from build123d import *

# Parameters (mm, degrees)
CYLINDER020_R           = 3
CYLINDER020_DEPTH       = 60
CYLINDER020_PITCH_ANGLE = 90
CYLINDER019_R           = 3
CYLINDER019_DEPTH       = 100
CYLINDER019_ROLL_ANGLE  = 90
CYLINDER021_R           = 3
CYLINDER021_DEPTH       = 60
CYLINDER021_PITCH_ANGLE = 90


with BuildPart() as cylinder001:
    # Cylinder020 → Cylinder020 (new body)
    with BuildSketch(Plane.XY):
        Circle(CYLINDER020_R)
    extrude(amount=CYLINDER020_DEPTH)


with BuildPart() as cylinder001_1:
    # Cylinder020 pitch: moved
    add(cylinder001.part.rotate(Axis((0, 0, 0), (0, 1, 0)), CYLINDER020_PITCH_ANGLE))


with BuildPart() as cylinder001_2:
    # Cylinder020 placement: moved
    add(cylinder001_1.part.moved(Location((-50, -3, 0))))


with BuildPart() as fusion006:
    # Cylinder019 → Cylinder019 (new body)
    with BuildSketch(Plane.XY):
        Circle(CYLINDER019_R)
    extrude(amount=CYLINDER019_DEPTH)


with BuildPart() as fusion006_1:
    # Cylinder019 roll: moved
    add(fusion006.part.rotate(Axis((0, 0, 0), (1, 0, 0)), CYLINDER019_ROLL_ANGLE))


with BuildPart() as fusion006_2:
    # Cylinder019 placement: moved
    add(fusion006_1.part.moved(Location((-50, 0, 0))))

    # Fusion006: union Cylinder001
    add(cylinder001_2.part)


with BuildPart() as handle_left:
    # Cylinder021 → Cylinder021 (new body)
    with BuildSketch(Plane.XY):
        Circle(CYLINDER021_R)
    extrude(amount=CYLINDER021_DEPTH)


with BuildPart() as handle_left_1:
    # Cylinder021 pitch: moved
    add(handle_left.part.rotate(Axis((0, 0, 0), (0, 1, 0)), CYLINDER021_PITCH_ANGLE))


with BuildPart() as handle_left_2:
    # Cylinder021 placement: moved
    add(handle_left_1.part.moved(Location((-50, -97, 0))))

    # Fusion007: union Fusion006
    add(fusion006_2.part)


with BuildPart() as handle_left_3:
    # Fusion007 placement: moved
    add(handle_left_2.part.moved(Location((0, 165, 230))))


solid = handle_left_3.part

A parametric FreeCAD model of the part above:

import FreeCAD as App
import Part
import Sketcher
from FreeCAD import Vector
Q = App.Units.Quantity

doc = App.newDocument("Part")
body = doc.addObject("PartDesign::Body", "Body")

sketch1 = body.newObject("Sketcher::SketchObject", "Sketch")
sketch1.AttachmentSupport = (doc.getObject("XY_Plane"), [""])
sketch1.MapMode = "FlatFace"
sketch1.addGeometry(Part.Circle(Vector(0, 0, 0), Vector(0, 0, 1), 3), False)
sketch1.addConstraint([
    Sketcher.Constraint("Coincident", 0, 3, -1, 1),
    Sketcher.Constraint("Diameter", 0, Q("6 mm")),
])
pad1 = body.newObject("PartDesign::Pad", "Pad")
pad1.Profile = sketch1
pad1.Length = 60
body2 = doc.addObject("PartDesign::Body", "Body001")
doc.recompute()

body.Placement = App.Placement(Vector(0, 0, 0), App.Rotation(Vector(0, 1, 0), 90))
boolean = body2.newObject("PartDesign::Boolean", "Boolean")
boolean.Type = "Fuse"
boolean.addObjects([body])
body3 = doc.addObject("PartDesign::Body", "Body002")
doc.recompute()

body2.Placement = App.Placement(Vector(-50, -3, 0), App.Rotation(Vector(0, 0, 1), 0))
boolean2 = body3.newObject("PartDesign::Boolean", "Boolean001")
boolean2.Type = "Fuse"
boolean2.addObjects([body2])
body4 = doc.addObject("PartDesign::Body", "Body003")

sketch2 = body4.newObject("Sketcher::SketchObject", "Sketch001")
sketch2.AttachmentSupport = (doc.getObject("XY_Plane003"), [""])
sketch2.MapMode = "FlatFace"
sketch2.addGeometry(Part.Circle(Vector(0, 0, 0), Vector(0, 0, 1), 3), False)
sketch2.addConstraint([
    Sketcher.Constraint("Coincident", 0, 3, -1, 1),
    Sketcher.Constraint("Diameter", 0, Q("6 mm")),
])
pad2 = body4.newObject("PartDesign::Pad", "Pad001")
pad2.Profile = sketch2
pad2.Length = 100
body5 = doc.addObject("PartDesign::Body", "Body004")
doc.recompute()

body4.Placement = App.Placement(Vector(0, 0, 0), App.Rotation(Vector(1, 0, 0), 90))
boolean3 = body5.newObject("PartDesign::Boolean", "Boolean002")
boolean3.Type = "Fuse"
boolean3.addObjects([body4])
body6 = doc.addObject("PartDesign::Body", "Body005")
doc.recompute()

body5.Placement = App.Placement(Vector(-50, 0, 0), App.Rotation(Vector(0, 0, 1), 0))
boolean4 = body6.newObject("PartDesign::Boolean", "Boolean003")
boolean4.Type = "Fuse"
boolean4.addObjects([body5])
doc.recompute()

boolean5 = body6.newObject("PartDesign::Boolean", "Boolean004")
boolean5.Type = "Fuse"
boolean5.addObjects([body3])
body7 = doc.addObject("PartDesign::Body", "Body006")

sketch3 = body7.newObject("Sketcher::SketchObject", "Sketch002")
sketch3.AttachmentSupport = (doc.getObject("XY_Plane006"), [""])
sketch3.MapMode = "FlatFace"
sketch3.addGeometry(Part.Circle(Vector(0, 0, 0), Vector(0, 0, 1), 3), False)
sketch3.addConstraint([
    Sketcher.Constraint("Coincident", 0, 3, -1, 1),
    Sketcher.Constraint("Diameter", 0, Q("6 mm")),
])
pad3 = body7.newObject("PartDesign::Pad", "Pad002")
pad3.Profile = sketch3
pad3.Length = 60
body8 = doc.addObject("PartDesign::Body", "Body007")
doc.recompute()

body7.Placement = App.Placement(Vector(0, 0, 0), App.Rotation(Vector(0, 1, 0), 90))
boolean6 = body8.newObject("PartDesign::Boolean", "Boolean005")
boolean6.Type = "Fuse"
boolean6.addObjects([body7])
body9 = doc.addObject("PartDesign::Body", "Body008")
doc.recompute()

body8.Placement = App.Placement(Vector(-50, -97, 0), App.Rotation(Vector(0, 0, 1), 0))
boolean7 = body9.newObject("PartDesign::Boolean", "Boolean006")
boolean7.Type = "Fuse"
boolean7.addObjects([body8])
doc.recompute()

boolean8 = body9.newObject("PartDesign::Boolean", "Boolean007")
boolean8.Type = "Fuse"
boolean8.addObjects([body6])
body10 = doc.addObject("PartDesign::Body", "Body009")
doc.recompute()

body9.Placement = App.Placement(Vector(0, 165, 230), App.Rotation(Vector(0, 0, 1), 0))
boolean9 = body10.newObject("PartDesign::Boolean", "Boolean008")
boolean9.Type = "Fuse"
boolean9.addObjects([body9])

doc.recompute()
